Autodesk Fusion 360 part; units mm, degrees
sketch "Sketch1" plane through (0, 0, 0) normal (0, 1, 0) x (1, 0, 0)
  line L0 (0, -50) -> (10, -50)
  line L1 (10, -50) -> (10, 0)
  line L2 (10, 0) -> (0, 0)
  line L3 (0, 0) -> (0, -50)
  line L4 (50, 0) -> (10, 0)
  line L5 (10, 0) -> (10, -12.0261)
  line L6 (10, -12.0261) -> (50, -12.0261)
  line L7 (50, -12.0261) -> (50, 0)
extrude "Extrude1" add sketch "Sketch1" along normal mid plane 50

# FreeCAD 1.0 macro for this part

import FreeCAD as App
import Part
import Sketcher

doc = App.newDocument("Part")
body = doc.addObject("PartDesign::Body", "Body")

sketch1 = doc.addObject("Sketcher::SketchObject", "Sketch")
body.addObject(sketch1)
sketch1.AttachmentSupport = (doc.XZ_Plane, [""])
sketch1.MapMode = "FlatFace"
sketch1.addGeometry([
    Part.LineSegment(App.Vector(0, 0, 0), App.Vector(0, 50, 0)),
    Part.LineSegment(App.Vector(0, 50, 0), App.Vector(10, 50, 0)),
    Part.LineSegment(App.Vector(10, 50, 0), App.Vector(10, 12, 0)),
    Part.LineSegment(App.Vector(10, 12, 0), App.Vector(50, 12, 0)),
    Part.LineSegment(App.Vector(50, 12, 0), App.Vector(50, 0, 0)),
    Part.LineSegment(App.Vector(50, 0, 0), App.Vector(0, 0, 0)),
], False)
sketch1.addConstraint([
    Sketcher.Constraint("Coincident", 0, 2, 1, 1),
    Sketcher.Constraint("Coincident", 1, 2, 2, 1),
    Sketcher.Constraint("Coincident", 2, 2, 3, 1),
    Sketcher.Constraint("Coincident", 3, 2, 4, 1),
    Sketcher.Constraint("Coincident", 4, 2, 5, 1),
    Sketcher.Constraint("Coincident", 5, 2, 0, 1),
    Sketcher.Constraint("Vertical", 0),
    Sketcher.Constraint("Horizontal", 1),
    Sketcher.Constraint("Vertical", 2),
    Sketcher.Constraint("Horizontal", 3),
    Sketcher.Constraint("Vertical", 4),
    Sketcher.Constraint("Horizontal", 5),
    Sketcher.Constraint("Coincident", 5, 2, -1, 1),
    Sketcher.Constraint("Equal", 5, 0),
    Sketcher.Constraint("DistanceX", 1, 1, 1, 2, 10.0),
    Sketcher.Constraint("DistanceX", 3, 1, 3, 2, 40.0),
    Sketcher.Constraint("DistanceY", 2, 2, 2, 1, 37.974),
])
pad1 = doc.addObject("PartDesign::Pad", "Pad")
body.addObject(pad1)
pad1.Profile = sketch1
pad1.Length = 50
pad1.Midplane = True

doc.recompute()
